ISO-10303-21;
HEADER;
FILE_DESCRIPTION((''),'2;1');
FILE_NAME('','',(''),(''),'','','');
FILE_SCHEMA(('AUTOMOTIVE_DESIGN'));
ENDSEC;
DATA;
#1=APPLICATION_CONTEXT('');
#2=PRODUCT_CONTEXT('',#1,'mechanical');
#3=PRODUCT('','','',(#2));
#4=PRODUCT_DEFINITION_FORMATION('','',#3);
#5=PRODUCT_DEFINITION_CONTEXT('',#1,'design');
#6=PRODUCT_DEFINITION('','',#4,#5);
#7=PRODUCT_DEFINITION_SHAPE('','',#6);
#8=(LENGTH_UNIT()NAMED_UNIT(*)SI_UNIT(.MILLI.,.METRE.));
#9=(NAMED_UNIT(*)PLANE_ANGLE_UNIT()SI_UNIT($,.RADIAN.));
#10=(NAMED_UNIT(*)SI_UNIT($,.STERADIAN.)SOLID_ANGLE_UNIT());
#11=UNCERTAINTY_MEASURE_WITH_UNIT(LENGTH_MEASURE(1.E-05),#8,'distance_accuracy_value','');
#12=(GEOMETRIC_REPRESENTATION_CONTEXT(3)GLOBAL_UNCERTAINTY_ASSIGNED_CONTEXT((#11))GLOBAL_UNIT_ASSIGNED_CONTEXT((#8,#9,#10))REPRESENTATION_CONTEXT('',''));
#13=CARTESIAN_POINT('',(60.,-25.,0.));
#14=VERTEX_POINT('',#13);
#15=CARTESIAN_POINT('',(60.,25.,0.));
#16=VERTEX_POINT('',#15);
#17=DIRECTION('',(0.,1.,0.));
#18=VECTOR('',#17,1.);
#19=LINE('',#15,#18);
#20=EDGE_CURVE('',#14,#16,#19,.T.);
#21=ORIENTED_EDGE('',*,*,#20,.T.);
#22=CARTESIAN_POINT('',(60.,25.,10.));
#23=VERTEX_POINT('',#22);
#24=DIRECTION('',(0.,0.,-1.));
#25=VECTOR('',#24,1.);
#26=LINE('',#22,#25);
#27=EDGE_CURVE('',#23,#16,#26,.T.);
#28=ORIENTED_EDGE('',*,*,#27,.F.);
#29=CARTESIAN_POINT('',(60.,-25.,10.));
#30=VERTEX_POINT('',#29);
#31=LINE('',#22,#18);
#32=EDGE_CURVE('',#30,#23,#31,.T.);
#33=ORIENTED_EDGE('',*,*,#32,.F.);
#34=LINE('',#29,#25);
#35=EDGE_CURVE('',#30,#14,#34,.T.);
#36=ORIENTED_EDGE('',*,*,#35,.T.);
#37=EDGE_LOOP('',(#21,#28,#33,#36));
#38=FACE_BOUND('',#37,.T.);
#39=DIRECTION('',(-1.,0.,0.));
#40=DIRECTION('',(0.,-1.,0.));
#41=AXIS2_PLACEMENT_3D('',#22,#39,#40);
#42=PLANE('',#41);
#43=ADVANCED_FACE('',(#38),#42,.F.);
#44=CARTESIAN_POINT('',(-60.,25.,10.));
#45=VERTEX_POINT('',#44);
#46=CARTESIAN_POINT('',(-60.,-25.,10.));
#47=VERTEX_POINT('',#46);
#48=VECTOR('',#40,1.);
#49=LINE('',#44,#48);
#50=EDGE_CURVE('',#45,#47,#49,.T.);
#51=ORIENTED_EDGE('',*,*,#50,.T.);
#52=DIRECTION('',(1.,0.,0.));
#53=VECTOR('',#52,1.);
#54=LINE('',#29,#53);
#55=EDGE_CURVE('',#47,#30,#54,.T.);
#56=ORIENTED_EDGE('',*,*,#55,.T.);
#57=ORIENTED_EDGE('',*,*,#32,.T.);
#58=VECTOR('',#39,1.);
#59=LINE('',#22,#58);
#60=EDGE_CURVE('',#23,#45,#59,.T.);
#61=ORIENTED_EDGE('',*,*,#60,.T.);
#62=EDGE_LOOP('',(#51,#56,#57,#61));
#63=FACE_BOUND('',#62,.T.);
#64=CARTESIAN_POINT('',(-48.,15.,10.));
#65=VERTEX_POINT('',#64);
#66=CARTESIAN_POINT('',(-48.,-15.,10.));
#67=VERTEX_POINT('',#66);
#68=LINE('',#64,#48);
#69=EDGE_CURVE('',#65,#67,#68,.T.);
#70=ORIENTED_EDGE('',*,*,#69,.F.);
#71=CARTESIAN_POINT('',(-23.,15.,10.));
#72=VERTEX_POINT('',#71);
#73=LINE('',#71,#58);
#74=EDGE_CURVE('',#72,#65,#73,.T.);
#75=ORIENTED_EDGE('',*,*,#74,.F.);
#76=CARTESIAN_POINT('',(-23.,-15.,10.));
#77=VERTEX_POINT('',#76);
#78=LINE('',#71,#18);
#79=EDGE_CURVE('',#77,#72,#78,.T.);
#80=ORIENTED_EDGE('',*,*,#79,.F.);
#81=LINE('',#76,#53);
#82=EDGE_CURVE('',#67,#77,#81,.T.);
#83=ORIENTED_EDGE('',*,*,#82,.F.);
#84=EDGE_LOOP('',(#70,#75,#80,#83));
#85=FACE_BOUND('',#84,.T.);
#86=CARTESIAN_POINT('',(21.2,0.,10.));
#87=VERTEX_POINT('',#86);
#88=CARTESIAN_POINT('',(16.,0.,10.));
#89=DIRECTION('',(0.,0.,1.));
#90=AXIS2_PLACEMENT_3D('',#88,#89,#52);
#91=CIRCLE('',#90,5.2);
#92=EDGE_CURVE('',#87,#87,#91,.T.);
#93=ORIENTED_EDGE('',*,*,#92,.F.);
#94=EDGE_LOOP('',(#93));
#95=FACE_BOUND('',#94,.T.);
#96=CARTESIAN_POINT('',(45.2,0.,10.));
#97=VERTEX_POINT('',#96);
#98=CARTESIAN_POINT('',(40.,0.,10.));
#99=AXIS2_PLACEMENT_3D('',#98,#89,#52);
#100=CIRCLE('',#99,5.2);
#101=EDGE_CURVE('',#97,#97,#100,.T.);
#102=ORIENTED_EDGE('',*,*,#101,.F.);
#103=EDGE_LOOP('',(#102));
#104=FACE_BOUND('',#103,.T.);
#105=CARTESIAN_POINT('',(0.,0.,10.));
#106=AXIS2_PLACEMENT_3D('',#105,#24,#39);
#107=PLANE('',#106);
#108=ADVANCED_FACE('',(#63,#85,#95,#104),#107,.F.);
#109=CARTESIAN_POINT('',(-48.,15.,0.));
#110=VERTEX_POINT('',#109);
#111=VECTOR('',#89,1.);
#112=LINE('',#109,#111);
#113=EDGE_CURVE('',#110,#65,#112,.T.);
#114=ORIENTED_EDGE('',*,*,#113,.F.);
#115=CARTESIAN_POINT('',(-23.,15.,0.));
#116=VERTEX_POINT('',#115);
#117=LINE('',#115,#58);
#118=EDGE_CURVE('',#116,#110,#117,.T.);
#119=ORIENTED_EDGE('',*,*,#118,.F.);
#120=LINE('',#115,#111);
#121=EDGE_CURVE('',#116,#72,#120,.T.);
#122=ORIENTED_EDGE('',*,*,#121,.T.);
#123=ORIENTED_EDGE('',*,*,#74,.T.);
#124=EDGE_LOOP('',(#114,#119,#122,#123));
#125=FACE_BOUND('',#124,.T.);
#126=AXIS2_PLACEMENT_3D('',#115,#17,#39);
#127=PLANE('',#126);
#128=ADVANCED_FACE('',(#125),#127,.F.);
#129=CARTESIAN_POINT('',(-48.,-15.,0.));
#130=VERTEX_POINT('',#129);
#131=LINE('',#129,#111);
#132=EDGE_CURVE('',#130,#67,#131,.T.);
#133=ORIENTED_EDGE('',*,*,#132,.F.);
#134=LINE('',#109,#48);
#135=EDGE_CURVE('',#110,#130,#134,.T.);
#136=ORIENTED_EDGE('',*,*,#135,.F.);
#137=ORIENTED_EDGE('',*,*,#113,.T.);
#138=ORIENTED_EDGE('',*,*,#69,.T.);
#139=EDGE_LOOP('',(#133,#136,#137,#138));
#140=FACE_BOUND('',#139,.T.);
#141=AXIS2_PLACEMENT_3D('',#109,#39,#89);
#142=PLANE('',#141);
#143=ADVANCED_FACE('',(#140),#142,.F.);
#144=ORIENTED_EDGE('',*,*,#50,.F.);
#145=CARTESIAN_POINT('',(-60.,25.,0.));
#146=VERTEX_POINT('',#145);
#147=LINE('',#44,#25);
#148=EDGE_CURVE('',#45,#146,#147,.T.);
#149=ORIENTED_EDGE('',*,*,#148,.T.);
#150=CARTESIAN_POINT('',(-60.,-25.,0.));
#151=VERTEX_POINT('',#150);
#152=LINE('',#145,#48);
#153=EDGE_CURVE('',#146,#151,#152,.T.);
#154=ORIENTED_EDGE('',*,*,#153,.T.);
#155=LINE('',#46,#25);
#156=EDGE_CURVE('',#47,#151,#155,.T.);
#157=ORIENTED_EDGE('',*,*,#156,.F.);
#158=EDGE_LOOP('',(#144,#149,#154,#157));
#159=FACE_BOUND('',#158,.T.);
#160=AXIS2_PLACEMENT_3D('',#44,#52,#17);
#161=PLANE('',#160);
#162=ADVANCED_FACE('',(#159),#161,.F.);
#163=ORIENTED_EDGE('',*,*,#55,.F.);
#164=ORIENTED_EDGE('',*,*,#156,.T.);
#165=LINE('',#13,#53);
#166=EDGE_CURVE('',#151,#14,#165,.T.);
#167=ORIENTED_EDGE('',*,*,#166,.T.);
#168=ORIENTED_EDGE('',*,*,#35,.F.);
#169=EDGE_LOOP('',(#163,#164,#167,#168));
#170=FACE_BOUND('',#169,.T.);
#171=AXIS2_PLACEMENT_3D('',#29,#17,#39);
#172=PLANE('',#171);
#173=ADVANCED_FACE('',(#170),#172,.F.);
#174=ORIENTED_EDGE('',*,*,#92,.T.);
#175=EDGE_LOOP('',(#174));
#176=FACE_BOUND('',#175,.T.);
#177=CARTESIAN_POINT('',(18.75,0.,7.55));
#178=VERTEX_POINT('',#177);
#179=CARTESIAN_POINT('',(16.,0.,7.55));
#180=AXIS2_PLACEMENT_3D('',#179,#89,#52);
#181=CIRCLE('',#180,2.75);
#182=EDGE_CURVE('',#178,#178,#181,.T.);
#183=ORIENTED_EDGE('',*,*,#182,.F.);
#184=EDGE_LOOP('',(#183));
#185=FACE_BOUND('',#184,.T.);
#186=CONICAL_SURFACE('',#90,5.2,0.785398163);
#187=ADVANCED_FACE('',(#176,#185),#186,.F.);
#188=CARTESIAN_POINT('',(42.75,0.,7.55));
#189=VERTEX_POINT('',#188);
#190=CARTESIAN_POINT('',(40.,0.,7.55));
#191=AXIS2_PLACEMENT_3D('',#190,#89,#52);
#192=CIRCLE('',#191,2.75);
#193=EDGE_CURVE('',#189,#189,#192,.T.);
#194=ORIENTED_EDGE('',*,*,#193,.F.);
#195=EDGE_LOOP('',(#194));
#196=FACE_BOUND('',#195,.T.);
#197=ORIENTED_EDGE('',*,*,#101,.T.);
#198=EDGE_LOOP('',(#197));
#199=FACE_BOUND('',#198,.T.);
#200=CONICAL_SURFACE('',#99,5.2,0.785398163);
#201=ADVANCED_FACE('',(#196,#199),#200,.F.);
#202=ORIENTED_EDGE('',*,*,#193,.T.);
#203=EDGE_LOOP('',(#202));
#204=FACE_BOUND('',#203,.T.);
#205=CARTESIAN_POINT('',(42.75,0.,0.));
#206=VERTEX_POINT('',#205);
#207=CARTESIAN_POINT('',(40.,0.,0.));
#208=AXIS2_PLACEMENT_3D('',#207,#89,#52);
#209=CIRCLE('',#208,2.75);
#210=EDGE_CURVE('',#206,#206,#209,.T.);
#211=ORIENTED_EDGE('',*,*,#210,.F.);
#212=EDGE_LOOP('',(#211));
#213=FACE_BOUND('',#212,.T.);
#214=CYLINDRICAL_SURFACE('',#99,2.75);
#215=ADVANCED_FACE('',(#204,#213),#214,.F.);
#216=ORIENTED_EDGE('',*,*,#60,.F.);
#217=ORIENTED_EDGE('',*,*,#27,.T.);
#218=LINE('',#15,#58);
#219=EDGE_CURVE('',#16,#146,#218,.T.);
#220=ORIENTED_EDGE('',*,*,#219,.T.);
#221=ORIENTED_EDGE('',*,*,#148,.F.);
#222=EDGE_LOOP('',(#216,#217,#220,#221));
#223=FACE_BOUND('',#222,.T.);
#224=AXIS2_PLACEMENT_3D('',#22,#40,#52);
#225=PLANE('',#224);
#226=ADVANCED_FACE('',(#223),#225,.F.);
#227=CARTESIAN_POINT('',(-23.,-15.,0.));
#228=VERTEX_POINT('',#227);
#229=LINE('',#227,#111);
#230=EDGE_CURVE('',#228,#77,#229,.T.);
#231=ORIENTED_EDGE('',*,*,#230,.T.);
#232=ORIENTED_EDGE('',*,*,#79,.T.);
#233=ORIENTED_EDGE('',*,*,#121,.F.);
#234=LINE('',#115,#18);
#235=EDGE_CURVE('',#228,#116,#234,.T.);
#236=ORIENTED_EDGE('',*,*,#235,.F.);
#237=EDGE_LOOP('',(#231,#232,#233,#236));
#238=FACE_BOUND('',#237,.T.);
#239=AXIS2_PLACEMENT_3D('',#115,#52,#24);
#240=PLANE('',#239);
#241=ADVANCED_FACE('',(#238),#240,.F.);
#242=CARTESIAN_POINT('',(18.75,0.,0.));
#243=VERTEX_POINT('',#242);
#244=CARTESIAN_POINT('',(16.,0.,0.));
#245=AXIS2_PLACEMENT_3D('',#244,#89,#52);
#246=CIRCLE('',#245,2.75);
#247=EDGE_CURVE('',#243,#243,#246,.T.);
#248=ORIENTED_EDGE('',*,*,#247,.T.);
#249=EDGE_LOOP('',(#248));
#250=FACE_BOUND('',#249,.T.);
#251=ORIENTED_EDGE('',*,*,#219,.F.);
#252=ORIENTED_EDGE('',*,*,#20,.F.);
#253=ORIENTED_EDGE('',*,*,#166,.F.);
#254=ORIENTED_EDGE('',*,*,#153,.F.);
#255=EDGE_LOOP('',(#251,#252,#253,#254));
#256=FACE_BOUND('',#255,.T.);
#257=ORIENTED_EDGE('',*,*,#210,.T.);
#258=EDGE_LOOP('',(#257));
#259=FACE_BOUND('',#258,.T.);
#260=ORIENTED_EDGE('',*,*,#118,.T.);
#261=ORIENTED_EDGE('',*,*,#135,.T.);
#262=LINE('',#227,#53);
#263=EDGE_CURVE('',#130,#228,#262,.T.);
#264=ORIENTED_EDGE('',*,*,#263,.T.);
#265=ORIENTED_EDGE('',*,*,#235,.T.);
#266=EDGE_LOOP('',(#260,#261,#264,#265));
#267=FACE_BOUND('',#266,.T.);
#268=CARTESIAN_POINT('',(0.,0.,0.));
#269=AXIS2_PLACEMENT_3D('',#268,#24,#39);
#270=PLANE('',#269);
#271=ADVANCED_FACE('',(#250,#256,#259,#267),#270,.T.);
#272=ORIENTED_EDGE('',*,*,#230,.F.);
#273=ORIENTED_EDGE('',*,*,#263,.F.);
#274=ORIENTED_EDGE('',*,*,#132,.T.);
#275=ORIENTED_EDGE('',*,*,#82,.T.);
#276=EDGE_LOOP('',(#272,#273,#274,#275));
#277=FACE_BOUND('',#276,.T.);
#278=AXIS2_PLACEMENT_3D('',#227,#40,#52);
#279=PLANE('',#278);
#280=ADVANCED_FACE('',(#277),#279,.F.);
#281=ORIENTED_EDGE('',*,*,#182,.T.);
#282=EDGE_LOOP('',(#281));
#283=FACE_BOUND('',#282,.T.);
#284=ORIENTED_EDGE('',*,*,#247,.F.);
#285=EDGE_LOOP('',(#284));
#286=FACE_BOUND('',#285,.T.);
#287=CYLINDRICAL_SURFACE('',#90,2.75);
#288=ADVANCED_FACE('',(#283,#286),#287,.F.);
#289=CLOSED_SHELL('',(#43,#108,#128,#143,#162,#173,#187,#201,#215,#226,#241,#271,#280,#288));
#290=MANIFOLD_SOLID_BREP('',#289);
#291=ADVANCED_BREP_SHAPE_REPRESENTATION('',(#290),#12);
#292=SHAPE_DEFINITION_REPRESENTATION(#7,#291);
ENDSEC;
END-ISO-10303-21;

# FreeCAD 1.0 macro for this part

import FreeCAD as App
import Part
import Sketcher
from FreeCAD import Vector


def add_polygon(sketch, points):
    """Adds a closed chain of lines whose ends are joined by coincident constraints."""
    first, n = sketch.GeometryCount, len(points)
    for a, b in zip(points, points[1:] + points[:1]):
        sketch.addGeometry(Part.LineSegment(App.Vector(*a, 0), App.Vector(*b, 0)), False)
    for i in range(n):
        sketch.addConstraint(Sketcher.Constraint("Coincident", first + i, 2, first + (i + 1) % n, 1))

doc = App.newDocument("Part")
body = doc.addObject("PartDesign::Body", "Body")

# Sketch on XY plane
sketch1 = body.newObject("Sketcher::SketchObject", "Sketch")
sketch1.AttachmentSupport = (doc.getObject("XY_Plane"), [""])
sketch1.MapMode = "FlatFace"
add_polygon(sketch1, [(-60, 25), (-60, -25), (60, -25), (60, 25)])  # lines 0-3
sketch1.addConstraint([
    Sketcher.Constraint("Vertical", 0),
    Sketcher.Constraint("Horizontal", 1),
    Sketcher.Constraint("Vertical", 2),
    Sketcher.Constraint("Horizontal", 3),
    Sketcher.Constraint("Symmetric", 0, 2, 2, 2, -1, 1),
    Sketcher.Constraint("DistanceX", 1, 1, 1, 2, 120.0),
    Sketcher.Constraint("DistanceY", 0, 2, 0, 1, 50.0),
])
pad1 = body.newObject("PartDesign::Pad", "Pad")
pad1.Profile = sketch1
pad1.Length = 10

# Sketch on XY plane
sketch2 = body.newObject("Sketcher::SketchObject", "Sketch001")
sketch2.AttachmentSupport = (doc.getObject("XY_Plane"), [""])
sketch2.MapMode = "FlatFace"
sketch2.AttachmentOffset = App.Placement(Vector(0, 0, 10), App.Rotation())
add_polygon(sketch2, [(-48, 15), (-48, -15), (-23, -15), (-23, 15)])  # lines 0-3
sketch2.addConstraint([
    Sketcher.Constraint("Vertical", 0),
    Sketcher.Constraint("Horizontal", 1),
    Sketcher.Constraint("Vertical", 2),
    Sketcher.Constraint("Horizontal", 3),
    Sketcher.Constraint("DistanceX", 1, 1, 1, 2, 25.0),
    Sketcher.Constraint("DistanceY", 0, 2, 0, 1, 30.0),
    Sketcher.Constraint("DistanceX", 0, 2, -1, 1, 48.0),
    Sketcher.Constraint("DistanceY", 0, 2, -1, 1, 15.0),
])
pocket1 = body.newObject("PartDesign::Pocket", "Pocket")
pocket1.Profile = sketch2
pocket1.Length = 10

# Sketch on XY plane
sketch3 = body.newObject("Sketcher::SketchObject", "Sketch002")
sketch3.AttachmentSupport = (doc.getObject("XY_Plane"), [""])
sketch3.MapMode = "FlatFace"
sketch3.AttachmentOffset = App.Placement(Vector(0, 0, 10), App.Rotation())
sketch3.addGeometry([
    Part.Circle(Vector(16, 0, 0), Vector(0, 0, 1), 2.75),
    Part.Circle(Vector(40, 0, 0), Vector(0, 0, 1), 2.75),
], False)
sketch3.addConstraint([
    Sketcher.Constraint("Equal", 0, 1),
    Sketcher.Constraint("PointOnObject", 0, 3, -1),
    Sketcher.Constraint("PointOnObject", 1, 3, -1),
    Sketcher.Constraint("Diameter", 0, 5.5),
    Sketcher.Constraint("DistanceX", -1, 1, 0, 3, 16.0),
    Sketcher.Constraint("DistanceX", -1, 1, 1, 3, 40.0),
])
doc.recompute()
hole = body.newObject("PartDesign::Hole", "Hole")
hole.Profile = sketch3
hole.ThreadType = "None"
hole.Diameter = 5.5
hole.DepthType = "ThroughAll"
hole.HoleCutType = "Countersink"
hole.HoleCutDiameter = 10.4
hole.HoleCutCountersinkAngle = 90

doc.recompute()
